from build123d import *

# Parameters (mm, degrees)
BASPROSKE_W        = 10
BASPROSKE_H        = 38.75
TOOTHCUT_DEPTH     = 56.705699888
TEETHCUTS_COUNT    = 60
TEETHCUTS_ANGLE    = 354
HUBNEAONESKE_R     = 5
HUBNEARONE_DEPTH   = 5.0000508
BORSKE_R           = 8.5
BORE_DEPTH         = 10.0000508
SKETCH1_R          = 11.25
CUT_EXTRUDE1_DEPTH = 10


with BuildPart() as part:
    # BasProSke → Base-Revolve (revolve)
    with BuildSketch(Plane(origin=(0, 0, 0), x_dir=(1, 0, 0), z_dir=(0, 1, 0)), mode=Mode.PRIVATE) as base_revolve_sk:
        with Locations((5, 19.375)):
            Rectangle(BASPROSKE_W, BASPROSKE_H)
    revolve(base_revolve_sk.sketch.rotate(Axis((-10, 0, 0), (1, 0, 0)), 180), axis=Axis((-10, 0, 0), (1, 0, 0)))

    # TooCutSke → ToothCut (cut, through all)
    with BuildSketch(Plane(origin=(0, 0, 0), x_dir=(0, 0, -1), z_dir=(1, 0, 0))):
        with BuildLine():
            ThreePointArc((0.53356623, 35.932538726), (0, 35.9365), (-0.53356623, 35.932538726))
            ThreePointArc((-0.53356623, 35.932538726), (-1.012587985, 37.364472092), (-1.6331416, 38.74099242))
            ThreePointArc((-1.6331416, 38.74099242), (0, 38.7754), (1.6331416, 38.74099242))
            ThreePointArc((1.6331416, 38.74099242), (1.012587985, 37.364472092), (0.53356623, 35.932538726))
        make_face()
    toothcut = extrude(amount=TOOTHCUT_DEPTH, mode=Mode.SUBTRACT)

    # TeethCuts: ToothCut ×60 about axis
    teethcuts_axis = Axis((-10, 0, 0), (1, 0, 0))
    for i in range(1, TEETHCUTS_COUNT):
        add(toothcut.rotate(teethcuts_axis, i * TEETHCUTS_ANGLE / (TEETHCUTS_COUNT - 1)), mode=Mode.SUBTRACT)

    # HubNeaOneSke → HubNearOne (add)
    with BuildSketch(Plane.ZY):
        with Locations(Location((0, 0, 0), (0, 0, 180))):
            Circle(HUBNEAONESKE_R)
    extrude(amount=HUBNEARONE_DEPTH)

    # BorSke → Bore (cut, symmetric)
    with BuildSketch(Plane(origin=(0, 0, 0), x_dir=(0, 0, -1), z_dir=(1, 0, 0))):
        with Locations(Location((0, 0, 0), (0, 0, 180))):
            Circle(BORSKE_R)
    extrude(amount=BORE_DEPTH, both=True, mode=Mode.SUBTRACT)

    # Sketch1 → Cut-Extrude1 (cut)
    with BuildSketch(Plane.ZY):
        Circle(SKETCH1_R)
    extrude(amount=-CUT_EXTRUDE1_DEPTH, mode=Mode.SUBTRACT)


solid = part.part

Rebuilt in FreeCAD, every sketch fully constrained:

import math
import FreeCAD as App
import Part
import Sketcher
from FreeCAD import Vector

doc = App.newDocument("Part")
body = doc.addObject("PartDesign::Body", "Body")

sketch1 = body.newObject("Sketcher::SketchObject", "Sketch")
sketch1.AttachmentSupport = (doc.getObject("XZ_Plane"), [""])
sketch1.MapMode = "FlatFace"
sketch1.addGeometry([
    Part.LineSegment(Vector(0, -39, 0), Vector(0, 0, 0)),
    Part.LineSegment(Vector(0, 0, 0), Vector(10, 0, 0)),
    Part.LineSegment(Vector(10, 0, 0), Vector(10, -39, 0)),
    Part.LineSegment(Vector(10, -39, 0), Vector(0, -39, 0)),
], False)
sketch1.addConstraint([
    Sketcher.Constraint("Coincident", 0, 2, 1, 1),
    Sketcher.Constraint("Coincident", 1, 2, 2, 1),
    Sketcher.Constraint("Coincident", 2, 2, 3, 1),
    Sketcher.Constraint("Coincident", 3, 2, 0, 1),
    Sketcher.Constraint("Vertical", 0),
    Sketcher.Constraint("Horizontal", 1),
    Sketcher.Constraint("Vertical", 2),
    Sketcher.Constraint("Horizontal", 3),
    Sketcher.Constraint("Coincident", 0, 2, -1, 1),
    Sketcher.Constraint("DistanceX", 1, 1, 1, 2, 10.0),
    Sketcher.Constraint("DistanceY", 0, 1, 0, 2, 38.75),
])
revolution = body.newObject("PartDesign::Revolution", "Revolution")
revolution.Profile = sketch1
revolution.ReferenceAxis = (sketch1, ["H_Axis"])
revolution.Angle = 360

sketch2 = body.newObject("Sketcher::SketchObject", "Sketch001")
sketch2.AttachmentSupport = (doc.getObject("YZ_Plane"), [""])
sketch2.MapMode = "FlatFace"
sketch2.addGeometry([
    Part.ArcOfCircle(Part.Circle(Vector(0, 0, 0), Vector(0, 0, 1), 35.9), math.radians(-0.85), math.radians(0.85)),
    Part.ArcOfCircle(Part.Circle(Vector(31.9, -15, 0), Vector(0, 0, 1), 15), math.radians(62.85), math.radians(74.39)),
    Part.ArcOfCircle(Part.Circle(Vector(0, 0, 0), Vector(0, 0, 1), 38.8), math.radians(-2.41), math.radians(2.41)),
    Part.ArcOfCircle(Part.Circle(Vector(31.9, 15, 0), Vector(0, 0, 1), 15), math.radians(-74.39), math.radians(-62.85)),
], False)
sketch2.addConstraint([
    Sketcher.Constraint("Coincident", 0, 1, 1, 2),
    Sketcher.Constraint("Coincident", 1, 1, 2, 1),
    Sketcher.Constraint("Coincident", 2, 2, 3, 2),
    Sketcher.Constraint("Coincident", 3, 1, 0, 2),
    Sketcher.Constraint("Coincident", 0, 3, -1, 1),
    Sketcher.Constraint("Coincident", 2, 3, -1, 1),
    Sketcher.Constraint("Equal", 1, 3),
    Sketcher.Constraint("Symmetric", 1, 3, 3, 3, -1),
    Sketcher.Constraint("Radius", 1, 15.0),
    Sketcher.Constraint("Radius", 2, 38.7754),
    Sketcher.Constraint("Radius", 0, 35.936496),
    Sketcher.Constraint("DistanceX", -1, 1, 1, 3, 31.895828),
    Sketcher.Constraint("DistanceY", 1, 3, -1, 1, 14.980191),
])
pocket1 = body.newObject("PartDesign::Pocket", "Pocket")
pocket1.Profile = sketch2
pocket1.Type = "ThroughAll"
pocket1.Reversed = True
doc.recompute()

polarpattern = body.newObject("PartDesign::PolarPattern", "PolarPattern")
polarpattern.Originals = [pocket1]
polarpattern.Axis = (doc.getObject("X_Axis"), [""])
polarpattern.Angle = 360
polarpattern.Occurrences = 60
body.Tip = polarpattern

sketch3 = body.newObject("Sketcher::SketchObject", "Sketch002")
sketch3.AttachmentSupport = (doc.getObject("YZ_Plane"), [""])
sketch3.MapMode = "FlatFace"
sketch3.addGeometry(Part.Circle(Vector(0, 0, 0), Vector(0, 0, 1), 5), False)
sketch3.addConstraint([
    Sketcher.Constraint("Coincident", 0, 3, -1, 1),
    Sketcher.Constraint("Diameter", 0, 10.0),
])
pad1 = body.newObject("PartDesign::Pad", "Pad")
pad1.Profile = sketch3
pad1.Length = 5.000051
pad1.Reversed = True

sketch4 = body.newObject("Sketcher::SketchObject", "Sketch003")
sketch4.AttachmentSupport = (doc.getObject("YZ_Plane"), [""])
sketch4.MapMode = "FlatFace"
sketch4.addGeometry(Part.Circle(Vector(0, 0, 0), Vector(0, 0, 1), 8), False)
sketch4.addConstraint([
    Sketcher.Constraint("Coincident", 0, 3, -1, 1),
    Sketcher.Constraint("Diameter", 0, 17.0),
])
pocket2 = body.newObject("PartDesign::Pocket", "Pocket001")
pocket2.Profile = sketch4
pocket2.Length = 20.000102
pocket2.Midplane = True

sketch5 = body.newObject("Sketcher::SketchObject", "Sketch004")
sketch5.AttachmentSupport = (doc.getObject("YZ_Plane"), [""])
sketch5.MapMode = "FlatFace"
sketch5.addGeometry(Part.Circle(Vector(0, 0, 0), Vector(0, 0, 1), 11), False)
sketch5.addConstraint([
    Sketcher.Constraint("Coincident", 0, 3, -1, 1),
    Sketcher.Constraint("Diameter", 0, 22.5),
])
pocket3 = body.newObject("PartDesign::Pocket", "Pocket002")
pocket3.Profile = sketch5
pocket3.Length = 10
pocket3.Reversed = True

doc.recompute()
